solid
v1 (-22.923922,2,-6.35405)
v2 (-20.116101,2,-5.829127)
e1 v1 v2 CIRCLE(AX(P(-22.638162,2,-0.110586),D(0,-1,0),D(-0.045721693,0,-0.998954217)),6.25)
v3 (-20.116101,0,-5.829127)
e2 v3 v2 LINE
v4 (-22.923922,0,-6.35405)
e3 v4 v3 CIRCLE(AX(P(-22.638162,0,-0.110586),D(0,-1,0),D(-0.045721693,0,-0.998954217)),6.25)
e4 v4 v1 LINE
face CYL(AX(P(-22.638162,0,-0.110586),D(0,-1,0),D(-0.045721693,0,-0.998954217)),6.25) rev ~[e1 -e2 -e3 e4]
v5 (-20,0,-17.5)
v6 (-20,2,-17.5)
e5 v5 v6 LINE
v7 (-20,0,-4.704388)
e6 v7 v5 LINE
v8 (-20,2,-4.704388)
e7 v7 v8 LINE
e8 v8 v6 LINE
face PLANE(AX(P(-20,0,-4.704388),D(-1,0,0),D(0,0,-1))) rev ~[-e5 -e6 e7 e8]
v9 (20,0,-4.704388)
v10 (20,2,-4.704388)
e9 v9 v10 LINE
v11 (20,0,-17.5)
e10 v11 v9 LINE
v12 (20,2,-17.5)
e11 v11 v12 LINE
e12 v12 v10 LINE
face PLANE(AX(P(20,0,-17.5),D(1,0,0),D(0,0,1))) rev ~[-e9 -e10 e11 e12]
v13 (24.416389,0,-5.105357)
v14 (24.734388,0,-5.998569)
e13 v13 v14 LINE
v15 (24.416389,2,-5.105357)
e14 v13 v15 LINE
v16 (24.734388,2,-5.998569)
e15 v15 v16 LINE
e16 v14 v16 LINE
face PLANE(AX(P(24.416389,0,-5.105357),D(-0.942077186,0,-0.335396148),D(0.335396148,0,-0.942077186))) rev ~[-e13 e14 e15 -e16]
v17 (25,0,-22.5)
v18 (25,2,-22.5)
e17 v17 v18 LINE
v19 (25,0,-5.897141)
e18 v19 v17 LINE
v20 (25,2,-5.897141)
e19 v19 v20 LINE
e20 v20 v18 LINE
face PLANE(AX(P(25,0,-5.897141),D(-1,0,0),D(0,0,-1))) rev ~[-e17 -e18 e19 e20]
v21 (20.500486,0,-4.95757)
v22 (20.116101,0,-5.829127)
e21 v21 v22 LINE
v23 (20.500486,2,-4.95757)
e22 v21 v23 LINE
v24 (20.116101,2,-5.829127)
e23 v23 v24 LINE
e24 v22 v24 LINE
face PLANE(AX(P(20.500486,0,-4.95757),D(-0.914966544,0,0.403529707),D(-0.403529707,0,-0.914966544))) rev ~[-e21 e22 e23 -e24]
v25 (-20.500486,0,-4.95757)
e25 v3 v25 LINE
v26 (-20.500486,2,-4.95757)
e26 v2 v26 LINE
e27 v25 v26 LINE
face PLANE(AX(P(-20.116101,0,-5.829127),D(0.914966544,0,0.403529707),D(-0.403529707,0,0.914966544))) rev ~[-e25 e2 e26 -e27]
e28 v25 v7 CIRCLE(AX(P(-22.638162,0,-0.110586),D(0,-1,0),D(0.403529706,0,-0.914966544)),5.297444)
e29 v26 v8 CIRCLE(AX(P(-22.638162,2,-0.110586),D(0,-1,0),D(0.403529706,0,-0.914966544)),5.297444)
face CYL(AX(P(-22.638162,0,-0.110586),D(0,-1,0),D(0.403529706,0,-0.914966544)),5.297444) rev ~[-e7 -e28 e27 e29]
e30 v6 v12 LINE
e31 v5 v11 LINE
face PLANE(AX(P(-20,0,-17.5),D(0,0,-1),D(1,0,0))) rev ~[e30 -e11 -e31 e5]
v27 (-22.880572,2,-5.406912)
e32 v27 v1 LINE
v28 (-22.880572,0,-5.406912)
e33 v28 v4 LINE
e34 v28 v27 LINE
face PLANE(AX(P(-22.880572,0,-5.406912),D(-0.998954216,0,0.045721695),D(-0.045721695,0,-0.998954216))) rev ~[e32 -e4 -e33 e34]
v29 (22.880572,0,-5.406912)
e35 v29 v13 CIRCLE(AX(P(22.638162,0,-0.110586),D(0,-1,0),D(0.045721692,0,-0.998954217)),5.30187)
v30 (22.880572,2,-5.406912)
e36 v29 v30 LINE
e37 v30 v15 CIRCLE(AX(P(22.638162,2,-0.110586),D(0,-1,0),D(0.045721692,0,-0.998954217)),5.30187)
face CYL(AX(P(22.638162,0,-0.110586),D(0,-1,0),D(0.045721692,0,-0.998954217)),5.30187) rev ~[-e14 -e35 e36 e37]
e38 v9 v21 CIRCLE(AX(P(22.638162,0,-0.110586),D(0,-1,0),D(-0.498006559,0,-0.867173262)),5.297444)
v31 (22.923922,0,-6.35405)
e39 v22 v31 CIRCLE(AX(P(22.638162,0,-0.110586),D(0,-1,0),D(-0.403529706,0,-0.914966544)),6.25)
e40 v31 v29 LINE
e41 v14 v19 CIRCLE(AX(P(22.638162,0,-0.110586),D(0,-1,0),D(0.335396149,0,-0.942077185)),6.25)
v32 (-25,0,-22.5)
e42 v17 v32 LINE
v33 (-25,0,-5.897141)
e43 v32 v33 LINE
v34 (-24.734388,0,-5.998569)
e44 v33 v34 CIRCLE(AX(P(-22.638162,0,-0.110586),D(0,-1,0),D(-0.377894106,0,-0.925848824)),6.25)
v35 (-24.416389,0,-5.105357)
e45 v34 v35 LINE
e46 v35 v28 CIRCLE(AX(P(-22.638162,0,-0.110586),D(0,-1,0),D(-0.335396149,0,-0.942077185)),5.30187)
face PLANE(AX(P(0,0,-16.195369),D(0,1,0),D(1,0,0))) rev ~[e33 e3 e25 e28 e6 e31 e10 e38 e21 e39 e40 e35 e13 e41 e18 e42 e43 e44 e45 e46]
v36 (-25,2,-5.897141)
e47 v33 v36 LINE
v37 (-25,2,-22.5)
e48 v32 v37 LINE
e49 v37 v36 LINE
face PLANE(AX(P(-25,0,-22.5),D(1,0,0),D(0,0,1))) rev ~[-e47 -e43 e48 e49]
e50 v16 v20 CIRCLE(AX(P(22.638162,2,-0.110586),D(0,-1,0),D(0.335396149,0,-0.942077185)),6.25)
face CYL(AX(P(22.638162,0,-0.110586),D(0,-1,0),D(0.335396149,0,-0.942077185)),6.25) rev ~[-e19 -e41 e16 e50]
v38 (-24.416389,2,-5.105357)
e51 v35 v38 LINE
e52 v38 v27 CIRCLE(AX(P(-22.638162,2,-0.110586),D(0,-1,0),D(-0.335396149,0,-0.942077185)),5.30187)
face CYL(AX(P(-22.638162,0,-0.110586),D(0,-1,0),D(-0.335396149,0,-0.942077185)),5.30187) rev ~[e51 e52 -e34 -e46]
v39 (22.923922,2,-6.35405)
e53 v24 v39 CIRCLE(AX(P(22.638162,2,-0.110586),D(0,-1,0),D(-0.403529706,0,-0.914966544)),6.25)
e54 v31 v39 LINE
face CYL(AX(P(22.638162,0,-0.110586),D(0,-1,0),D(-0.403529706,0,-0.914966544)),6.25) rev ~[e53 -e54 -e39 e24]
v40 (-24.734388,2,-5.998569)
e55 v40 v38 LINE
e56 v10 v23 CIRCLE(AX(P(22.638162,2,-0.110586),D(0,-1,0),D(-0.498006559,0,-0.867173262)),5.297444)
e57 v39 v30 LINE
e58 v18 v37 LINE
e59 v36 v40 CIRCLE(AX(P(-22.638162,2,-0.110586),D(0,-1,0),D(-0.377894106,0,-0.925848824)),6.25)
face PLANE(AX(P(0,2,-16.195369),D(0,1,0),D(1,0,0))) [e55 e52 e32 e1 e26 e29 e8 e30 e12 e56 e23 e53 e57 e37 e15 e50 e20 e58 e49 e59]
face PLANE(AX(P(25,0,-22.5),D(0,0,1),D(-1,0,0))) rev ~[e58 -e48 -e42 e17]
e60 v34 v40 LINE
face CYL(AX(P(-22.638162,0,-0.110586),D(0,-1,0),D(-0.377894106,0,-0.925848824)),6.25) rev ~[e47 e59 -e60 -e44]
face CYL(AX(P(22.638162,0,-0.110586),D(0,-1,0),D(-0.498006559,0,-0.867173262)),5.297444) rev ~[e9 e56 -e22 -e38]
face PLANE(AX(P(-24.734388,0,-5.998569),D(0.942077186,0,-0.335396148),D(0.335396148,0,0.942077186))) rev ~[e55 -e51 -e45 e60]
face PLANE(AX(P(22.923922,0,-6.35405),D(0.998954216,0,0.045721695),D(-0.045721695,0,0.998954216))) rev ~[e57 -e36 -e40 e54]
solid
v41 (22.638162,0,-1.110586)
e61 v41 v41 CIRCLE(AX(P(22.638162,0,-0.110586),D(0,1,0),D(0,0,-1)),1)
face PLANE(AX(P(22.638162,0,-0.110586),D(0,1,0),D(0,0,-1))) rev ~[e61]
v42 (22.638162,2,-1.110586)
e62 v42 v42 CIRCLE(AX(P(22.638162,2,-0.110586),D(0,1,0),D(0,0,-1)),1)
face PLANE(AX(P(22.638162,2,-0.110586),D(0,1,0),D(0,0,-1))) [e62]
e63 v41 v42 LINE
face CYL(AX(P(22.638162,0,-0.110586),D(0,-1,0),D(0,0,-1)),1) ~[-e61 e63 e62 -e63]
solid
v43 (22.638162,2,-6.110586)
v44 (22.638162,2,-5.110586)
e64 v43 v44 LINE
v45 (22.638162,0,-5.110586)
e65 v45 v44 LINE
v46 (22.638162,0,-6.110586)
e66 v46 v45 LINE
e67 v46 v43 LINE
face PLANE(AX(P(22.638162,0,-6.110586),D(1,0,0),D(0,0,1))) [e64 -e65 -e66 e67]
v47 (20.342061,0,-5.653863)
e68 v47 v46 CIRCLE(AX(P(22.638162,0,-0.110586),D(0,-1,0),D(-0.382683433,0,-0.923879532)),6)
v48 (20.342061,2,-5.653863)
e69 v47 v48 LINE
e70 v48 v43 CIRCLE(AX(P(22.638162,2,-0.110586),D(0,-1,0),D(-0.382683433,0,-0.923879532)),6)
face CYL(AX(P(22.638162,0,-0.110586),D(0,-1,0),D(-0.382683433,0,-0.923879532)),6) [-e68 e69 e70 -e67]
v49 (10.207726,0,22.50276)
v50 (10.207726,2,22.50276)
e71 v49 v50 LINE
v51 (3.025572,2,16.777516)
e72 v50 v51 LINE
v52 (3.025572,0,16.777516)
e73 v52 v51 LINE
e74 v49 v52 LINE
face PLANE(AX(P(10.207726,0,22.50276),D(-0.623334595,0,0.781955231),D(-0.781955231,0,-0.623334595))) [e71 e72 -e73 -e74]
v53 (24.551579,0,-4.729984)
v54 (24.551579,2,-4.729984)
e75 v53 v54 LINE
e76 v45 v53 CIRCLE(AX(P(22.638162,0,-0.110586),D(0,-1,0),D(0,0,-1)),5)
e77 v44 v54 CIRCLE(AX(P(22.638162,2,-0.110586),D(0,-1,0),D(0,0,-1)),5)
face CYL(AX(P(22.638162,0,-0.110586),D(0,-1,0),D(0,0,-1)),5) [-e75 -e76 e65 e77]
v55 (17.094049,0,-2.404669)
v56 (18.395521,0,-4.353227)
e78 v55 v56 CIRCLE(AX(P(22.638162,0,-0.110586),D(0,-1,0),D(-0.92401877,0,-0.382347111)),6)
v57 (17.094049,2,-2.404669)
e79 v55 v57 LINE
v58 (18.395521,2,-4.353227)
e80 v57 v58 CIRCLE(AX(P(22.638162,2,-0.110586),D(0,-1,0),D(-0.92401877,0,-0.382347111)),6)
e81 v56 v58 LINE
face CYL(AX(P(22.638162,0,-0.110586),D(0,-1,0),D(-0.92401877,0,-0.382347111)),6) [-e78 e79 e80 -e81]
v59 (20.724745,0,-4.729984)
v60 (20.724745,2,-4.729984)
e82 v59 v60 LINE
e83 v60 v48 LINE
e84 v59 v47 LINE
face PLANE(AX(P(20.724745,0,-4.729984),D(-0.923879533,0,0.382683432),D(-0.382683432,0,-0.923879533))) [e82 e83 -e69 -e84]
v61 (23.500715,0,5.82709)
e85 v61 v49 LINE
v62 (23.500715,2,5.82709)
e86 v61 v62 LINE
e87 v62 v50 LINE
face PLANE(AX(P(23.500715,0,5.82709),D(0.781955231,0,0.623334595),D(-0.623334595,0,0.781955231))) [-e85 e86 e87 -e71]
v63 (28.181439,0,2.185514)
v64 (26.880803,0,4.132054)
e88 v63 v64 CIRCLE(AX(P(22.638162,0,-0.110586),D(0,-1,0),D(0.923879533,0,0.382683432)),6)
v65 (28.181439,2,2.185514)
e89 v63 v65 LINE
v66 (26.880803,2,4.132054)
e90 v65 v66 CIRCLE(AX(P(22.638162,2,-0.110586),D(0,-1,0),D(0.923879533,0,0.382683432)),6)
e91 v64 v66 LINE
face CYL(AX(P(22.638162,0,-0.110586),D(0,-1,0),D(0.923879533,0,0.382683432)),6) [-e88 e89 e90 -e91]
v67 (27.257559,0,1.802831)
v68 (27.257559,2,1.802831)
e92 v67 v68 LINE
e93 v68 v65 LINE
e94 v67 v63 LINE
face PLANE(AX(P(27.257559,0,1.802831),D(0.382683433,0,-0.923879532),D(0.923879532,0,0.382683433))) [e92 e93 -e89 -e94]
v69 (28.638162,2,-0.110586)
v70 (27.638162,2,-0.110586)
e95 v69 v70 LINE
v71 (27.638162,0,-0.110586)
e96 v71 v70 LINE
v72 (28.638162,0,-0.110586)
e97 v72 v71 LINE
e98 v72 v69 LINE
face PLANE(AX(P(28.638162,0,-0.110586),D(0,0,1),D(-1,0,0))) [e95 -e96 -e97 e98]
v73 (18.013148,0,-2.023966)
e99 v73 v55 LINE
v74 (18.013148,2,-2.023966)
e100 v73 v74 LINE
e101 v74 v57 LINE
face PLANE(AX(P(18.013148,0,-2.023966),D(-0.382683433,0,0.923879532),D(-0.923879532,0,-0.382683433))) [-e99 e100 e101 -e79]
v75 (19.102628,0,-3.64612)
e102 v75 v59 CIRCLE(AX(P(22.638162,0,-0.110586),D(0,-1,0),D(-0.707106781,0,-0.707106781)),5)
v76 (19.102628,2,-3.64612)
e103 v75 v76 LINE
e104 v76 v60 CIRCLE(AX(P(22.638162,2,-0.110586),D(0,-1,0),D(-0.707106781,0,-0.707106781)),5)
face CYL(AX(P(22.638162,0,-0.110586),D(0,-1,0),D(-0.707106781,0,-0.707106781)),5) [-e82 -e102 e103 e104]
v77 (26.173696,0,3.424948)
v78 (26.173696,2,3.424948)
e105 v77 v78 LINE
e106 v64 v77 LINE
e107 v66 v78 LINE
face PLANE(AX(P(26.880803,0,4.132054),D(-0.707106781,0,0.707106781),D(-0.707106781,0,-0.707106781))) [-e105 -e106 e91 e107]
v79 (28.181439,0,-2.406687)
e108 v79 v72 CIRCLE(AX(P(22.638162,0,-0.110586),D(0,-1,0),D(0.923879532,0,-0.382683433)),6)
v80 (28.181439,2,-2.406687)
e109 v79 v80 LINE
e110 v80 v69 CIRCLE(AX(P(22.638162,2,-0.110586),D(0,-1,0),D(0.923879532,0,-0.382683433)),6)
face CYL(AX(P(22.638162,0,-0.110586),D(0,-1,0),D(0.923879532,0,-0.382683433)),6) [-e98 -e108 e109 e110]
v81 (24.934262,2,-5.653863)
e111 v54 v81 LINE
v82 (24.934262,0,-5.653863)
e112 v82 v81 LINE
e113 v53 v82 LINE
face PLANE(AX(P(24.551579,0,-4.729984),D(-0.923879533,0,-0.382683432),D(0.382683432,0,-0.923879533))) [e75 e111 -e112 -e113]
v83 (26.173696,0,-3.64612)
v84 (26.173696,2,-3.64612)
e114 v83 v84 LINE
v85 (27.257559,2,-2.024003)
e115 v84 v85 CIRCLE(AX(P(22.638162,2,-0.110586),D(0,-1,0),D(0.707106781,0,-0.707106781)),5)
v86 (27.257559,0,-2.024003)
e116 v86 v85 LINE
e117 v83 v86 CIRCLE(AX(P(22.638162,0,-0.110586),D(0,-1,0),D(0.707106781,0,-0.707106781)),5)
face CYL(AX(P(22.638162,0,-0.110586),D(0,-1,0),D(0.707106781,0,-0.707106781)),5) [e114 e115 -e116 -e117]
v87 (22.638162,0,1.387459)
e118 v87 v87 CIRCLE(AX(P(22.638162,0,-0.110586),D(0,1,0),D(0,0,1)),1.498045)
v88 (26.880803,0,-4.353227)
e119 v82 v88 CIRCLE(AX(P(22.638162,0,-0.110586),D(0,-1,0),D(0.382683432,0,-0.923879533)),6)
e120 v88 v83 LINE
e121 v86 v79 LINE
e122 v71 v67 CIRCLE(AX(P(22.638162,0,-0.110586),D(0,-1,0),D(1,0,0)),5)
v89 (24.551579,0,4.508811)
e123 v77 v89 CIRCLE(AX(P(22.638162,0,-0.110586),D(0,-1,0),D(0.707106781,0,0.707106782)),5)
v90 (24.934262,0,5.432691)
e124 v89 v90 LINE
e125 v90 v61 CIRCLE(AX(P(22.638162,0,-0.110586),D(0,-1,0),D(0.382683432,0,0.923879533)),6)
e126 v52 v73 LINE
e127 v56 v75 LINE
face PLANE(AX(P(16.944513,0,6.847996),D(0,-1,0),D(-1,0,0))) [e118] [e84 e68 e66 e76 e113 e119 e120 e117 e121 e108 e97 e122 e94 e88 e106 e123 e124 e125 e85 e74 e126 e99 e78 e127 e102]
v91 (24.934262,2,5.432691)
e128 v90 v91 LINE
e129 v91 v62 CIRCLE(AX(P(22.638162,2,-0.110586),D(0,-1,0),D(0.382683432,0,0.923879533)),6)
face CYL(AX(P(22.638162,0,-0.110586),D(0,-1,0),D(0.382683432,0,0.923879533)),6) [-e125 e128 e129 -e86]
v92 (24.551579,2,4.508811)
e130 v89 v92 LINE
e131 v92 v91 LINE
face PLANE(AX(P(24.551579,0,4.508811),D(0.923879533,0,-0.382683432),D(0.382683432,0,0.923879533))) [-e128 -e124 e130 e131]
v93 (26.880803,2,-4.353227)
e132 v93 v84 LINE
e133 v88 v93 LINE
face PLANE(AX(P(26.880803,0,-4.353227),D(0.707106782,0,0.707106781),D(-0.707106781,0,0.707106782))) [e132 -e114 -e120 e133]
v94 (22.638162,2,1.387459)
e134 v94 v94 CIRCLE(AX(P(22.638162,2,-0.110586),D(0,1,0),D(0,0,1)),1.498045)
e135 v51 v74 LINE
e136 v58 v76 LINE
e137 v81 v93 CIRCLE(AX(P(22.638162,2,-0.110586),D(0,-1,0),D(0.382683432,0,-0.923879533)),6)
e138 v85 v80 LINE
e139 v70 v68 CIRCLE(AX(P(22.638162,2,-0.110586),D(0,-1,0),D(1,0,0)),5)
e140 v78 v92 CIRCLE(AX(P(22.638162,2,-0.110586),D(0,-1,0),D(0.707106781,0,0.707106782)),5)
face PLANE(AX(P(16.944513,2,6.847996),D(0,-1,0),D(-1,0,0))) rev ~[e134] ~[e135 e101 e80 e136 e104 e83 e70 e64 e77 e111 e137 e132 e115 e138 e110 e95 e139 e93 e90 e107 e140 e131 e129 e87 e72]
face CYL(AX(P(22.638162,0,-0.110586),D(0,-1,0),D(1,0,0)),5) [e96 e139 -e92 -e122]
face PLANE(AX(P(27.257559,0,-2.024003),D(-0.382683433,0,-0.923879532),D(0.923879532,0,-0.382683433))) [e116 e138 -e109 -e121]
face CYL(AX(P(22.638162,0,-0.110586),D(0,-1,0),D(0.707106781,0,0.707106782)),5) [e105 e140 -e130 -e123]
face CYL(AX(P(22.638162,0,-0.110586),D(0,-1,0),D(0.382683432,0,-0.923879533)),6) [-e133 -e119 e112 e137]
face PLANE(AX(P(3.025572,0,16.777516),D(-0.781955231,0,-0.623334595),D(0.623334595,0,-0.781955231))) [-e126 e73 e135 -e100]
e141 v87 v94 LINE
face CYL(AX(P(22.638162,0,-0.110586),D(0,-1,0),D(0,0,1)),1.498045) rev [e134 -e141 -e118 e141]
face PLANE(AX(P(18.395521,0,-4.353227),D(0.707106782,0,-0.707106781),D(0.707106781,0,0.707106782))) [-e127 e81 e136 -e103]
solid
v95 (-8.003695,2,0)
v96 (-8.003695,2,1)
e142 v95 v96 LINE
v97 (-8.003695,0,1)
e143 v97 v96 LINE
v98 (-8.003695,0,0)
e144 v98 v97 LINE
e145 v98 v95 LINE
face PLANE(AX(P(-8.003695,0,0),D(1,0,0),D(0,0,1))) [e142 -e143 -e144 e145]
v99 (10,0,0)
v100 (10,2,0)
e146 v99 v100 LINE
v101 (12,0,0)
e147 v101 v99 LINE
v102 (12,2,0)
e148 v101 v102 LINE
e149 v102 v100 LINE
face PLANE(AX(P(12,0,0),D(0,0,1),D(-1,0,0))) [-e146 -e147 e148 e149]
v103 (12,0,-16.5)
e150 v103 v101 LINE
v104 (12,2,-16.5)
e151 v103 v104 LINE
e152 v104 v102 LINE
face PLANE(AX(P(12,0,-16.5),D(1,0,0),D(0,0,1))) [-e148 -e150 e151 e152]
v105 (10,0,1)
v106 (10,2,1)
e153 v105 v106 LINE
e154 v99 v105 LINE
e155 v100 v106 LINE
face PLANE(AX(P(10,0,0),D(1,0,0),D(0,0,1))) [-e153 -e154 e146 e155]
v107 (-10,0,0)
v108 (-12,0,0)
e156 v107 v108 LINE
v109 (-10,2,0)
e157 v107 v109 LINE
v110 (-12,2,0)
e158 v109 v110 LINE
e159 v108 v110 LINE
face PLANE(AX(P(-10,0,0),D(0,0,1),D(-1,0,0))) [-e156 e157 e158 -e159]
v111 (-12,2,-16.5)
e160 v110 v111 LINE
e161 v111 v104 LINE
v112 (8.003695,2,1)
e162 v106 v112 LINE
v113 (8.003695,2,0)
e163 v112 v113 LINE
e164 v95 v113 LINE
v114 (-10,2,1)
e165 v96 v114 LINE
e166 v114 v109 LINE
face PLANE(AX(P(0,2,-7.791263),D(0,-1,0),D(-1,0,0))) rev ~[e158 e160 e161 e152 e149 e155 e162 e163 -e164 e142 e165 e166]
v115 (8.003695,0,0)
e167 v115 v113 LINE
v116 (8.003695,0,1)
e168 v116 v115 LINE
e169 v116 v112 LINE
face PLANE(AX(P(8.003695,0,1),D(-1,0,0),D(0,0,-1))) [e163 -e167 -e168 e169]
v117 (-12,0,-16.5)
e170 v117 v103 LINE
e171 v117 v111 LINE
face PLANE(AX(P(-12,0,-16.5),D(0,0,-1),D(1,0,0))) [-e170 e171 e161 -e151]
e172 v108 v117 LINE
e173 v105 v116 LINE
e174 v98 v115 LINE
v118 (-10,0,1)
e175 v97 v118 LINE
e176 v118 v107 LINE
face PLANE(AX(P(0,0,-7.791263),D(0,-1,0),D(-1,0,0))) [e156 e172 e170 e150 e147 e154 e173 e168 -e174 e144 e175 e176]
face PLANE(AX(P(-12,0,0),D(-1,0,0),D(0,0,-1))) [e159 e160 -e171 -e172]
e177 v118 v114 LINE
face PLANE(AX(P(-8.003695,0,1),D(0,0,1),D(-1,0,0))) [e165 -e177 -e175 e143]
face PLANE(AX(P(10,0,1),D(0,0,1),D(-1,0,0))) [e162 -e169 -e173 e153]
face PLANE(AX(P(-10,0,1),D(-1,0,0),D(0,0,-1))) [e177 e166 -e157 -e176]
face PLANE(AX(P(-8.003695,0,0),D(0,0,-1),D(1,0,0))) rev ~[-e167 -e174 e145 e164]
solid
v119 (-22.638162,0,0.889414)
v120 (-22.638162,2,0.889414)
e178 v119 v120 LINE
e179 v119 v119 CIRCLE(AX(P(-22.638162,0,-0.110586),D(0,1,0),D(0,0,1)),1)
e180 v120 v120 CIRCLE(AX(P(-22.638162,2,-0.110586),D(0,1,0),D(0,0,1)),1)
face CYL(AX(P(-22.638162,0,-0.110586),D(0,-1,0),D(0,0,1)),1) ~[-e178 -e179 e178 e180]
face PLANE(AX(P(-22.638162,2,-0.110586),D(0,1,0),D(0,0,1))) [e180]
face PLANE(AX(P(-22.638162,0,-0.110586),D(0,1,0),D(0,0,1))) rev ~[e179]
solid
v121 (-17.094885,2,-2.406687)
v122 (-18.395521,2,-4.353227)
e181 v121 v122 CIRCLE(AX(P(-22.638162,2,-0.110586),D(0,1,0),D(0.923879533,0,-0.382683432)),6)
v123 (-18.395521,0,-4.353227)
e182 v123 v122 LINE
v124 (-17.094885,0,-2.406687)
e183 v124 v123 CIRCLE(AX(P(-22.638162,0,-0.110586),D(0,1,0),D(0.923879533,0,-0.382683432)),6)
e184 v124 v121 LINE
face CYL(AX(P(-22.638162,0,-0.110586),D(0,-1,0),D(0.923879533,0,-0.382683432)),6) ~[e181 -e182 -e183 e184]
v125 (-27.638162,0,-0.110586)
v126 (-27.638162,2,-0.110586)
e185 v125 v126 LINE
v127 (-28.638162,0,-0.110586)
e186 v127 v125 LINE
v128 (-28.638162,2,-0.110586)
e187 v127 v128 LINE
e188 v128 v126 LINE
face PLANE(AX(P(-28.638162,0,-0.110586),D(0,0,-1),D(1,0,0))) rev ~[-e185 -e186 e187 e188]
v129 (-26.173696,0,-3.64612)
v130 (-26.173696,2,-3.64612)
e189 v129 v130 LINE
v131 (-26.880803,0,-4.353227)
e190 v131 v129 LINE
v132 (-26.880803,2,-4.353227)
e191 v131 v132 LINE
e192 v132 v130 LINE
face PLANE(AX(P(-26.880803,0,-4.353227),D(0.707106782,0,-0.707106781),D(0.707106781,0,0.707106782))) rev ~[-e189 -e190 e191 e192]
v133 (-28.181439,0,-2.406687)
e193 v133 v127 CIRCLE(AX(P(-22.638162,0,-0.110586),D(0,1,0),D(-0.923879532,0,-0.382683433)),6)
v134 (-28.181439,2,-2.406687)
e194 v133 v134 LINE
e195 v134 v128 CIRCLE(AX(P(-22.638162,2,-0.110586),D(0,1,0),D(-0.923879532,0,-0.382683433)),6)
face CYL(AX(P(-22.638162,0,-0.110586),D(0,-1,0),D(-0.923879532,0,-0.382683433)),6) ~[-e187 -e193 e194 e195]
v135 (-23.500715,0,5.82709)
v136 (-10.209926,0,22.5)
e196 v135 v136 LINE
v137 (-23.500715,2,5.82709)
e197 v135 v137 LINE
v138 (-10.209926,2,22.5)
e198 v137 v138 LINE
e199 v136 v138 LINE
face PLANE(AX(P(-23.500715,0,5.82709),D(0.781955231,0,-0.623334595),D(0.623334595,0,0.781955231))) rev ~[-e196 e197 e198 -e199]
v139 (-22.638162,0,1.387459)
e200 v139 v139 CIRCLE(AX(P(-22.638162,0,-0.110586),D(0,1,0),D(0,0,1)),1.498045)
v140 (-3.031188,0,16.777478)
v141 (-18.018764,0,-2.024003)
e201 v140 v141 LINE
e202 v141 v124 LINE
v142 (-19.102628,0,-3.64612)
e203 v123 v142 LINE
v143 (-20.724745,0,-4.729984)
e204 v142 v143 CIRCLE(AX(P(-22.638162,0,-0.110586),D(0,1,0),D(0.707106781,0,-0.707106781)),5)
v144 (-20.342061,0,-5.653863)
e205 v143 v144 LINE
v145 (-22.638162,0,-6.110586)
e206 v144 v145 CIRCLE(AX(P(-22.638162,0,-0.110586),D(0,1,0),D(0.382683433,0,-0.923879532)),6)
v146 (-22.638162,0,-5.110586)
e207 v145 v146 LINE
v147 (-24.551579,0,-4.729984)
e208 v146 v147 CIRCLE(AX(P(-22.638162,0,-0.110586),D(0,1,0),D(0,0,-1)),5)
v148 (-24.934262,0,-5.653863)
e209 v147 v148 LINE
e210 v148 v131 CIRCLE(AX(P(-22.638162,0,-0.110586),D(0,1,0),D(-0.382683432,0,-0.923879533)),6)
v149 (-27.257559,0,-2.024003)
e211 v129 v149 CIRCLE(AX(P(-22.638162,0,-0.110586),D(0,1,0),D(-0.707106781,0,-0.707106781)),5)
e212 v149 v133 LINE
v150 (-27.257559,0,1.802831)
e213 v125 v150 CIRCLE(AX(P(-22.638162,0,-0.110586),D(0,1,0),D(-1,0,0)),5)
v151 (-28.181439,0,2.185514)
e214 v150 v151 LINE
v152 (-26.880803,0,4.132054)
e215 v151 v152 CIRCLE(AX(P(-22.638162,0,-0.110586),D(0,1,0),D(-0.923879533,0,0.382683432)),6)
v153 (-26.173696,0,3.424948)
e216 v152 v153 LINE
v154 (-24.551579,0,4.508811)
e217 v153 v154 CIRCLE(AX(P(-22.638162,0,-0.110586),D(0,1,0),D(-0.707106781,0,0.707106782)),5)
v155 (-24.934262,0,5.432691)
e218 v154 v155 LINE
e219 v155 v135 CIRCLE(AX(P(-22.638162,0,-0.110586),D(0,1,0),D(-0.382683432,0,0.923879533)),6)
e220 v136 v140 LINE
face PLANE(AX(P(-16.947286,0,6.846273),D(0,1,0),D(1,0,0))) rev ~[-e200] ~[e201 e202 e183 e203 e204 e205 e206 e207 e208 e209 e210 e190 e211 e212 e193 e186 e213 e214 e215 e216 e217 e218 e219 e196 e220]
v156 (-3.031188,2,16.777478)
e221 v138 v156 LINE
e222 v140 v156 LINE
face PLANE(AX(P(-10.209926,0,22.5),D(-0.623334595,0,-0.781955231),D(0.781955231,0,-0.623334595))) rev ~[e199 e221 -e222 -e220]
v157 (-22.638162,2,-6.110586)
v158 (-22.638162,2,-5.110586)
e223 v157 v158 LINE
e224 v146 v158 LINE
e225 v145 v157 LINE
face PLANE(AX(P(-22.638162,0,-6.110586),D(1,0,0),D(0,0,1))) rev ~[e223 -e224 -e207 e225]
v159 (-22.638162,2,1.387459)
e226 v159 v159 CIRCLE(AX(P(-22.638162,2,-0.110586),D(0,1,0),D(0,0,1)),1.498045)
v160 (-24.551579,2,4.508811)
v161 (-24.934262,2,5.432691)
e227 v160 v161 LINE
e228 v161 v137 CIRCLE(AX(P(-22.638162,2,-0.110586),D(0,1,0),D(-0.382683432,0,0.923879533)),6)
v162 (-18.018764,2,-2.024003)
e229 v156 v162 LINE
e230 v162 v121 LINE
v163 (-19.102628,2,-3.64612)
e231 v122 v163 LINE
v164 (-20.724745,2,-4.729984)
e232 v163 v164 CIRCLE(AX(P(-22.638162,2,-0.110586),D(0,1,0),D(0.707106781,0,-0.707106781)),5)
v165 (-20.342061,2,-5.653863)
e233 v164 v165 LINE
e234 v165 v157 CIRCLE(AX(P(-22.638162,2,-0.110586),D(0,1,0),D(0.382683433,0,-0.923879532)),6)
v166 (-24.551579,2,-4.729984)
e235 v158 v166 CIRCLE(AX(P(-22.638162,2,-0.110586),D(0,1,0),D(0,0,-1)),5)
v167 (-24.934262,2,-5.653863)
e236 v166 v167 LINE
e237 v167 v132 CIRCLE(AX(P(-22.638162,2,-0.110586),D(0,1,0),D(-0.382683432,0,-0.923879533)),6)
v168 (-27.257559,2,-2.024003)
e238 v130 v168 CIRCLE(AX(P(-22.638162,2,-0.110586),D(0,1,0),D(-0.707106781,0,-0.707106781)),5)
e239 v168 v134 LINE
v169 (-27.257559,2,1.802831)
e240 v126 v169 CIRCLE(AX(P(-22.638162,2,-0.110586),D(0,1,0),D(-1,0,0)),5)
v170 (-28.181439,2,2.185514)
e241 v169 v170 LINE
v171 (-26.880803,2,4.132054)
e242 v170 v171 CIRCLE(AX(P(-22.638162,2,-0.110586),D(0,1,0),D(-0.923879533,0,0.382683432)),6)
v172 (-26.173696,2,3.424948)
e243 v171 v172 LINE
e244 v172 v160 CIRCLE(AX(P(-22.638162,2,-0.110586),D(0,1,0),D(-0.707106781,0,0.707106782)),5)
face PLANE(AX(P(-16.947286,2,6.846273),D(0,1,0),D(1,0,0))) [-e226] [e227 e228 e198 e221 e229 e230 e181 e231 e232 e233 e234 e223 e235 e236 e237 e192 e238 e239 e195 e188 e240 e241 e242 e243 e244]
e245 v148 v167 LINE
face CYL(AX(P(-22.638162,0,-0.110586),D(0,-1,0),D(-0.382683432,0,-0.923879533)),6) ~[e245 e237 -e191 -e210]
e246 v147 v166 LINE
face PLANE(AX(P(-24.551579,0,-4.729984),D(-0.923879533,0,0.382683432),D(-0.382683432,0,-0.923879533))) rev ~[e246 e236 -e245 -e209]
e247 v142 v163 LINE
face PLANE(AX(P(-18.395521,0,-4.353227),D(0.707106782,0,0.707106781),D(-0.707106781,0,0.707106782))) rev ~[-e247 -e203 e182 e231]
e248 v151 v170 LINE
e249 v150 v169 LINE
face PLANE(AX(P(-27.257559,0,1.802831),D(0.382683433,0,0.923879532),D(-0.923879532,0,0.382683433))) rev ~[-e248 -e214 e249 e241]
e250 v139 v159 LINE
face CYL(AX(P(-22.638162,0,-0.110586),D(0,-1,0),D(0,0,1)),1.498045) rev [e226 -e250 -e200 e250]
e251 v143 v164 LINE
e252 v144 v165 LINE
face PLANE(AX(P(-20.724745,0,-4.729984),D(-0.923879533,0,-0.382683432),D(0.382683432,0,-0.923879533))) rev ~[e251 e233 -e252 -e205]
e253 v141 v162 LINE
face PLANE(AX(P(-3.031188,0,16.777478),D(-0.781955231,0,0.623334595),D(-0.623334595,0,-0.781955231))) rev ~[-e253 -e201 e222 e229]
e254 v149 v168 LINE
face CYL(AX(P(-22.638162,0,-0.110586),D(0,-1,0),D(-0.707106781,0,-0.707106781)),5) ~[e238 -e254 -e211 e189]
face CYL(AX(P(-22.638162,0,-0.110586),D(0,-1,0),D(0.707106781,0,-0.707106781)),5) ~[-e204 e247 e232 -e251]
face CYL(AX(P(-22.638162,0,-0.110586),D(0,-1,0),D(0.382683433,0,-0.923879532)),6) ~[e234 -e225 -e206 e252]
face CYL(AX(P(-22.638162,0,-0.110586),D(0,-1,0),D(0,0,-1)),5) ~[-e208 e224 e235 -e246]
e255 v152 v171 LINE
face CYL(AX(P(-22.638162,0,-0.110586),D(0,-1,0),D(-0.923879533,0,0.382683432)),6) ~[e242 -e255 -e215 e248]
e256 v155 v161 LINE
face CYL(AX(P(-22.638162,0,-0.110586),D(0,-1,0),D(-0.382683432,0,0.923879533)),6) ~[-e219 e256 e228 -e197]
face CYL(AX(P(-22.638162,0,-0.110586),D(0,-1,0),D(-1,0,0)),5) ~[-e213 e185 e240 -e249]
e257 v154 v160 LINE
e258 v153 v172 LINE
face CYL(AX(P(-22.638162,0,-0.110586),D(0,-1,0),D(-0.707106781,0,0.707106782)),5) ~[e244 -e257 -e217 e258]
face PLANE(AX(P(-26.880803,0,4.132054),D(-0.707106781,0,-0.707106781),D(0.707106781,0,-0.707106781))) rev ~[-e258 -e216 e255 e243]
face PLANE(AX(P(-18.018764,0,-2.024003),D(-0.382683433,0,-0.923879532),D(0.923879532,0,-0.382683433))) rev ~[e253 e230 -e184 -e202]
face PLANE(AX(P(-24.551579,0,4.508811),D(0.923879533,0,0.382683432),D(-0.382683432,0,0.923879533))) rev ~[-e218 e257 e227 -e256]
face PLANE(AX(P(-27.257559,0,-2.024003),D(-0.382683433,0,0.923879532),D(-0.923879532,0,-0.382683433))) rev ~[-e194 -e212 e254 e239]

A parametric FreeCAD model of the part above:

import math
import FreeCAD as App
import Part
import Sketcher
from FreeCAD import Vector
Q = App.Units.Quantity


def add_polygon(sketch, points):
    """Adds a closed chain of lines whose ends are joined by coincident constraints."""
    first, n = sketch.GeometryCount, len(points)
    for a, b in zip(points, points[1:] + points[:1]):
        sketch.addGeometry(Part.LineSegment(App.Vector(*a, 0), App.Vector(*b, 0)), False)
    for i in range(n):
        sketch.addConstraint(Sketcher.Constraint("Coincident", first + i, 2, first + (i + 1) % n, 1))

doc = App.newDocument("Part")
params = doc.addObject("Spreadsheet::Sheet", "Params")
for row, (alias, value) in enumerate([
    ("sketch1_radius", "6 mm"),
    ("sketch1_radius2", "5 mm"),
    ("pad1_length", "2 mm"),
    ("sketch2_radius", "5 mm"),
    ("sketch2_radius2", "6 mm"),
    ("sketch2_radius3", "5 mm"),
    ("sketch2_radius4", "6 mm"),
    ("sketch2_radius5", "6 mm"),
    ("pad2_length", "2 mm"),
    ("sketch3_width", "2 mm"),
    ("sketch3_width2", "24 mm"),
    ("sketch3_height", "1 mm"),
    ("sketch3_height2", "16.5 mm"),
    ("pad3_length", "2 mm"),
    ("sketch4_width", "50 mm"),
    ("sketch4_width2", "40 mm"),
    ("sketch4_radius", "6.25 mm"),
    ("pad4_length", "2 mm"),
    ("sketch5_diameter", "2 mm"),
    ("pad5_length", "2 mm"),
    ("sketch6_diameter", "2 mm"),
    ("pad6_length", "2 mm"),
], start=1):
    params.set(f"A{row}", alias)
    params.set(f"B{row}", "=" + value)
    params.setAlias(f"B{row}", alias)

body = doc.addObject("PartDesign::Body", "Body")

sketch1 = body.newObject("Sketcher::SketchObject", "Sketch")
sketch1.AttachmentSupport = (doc.getObject("XZ_Plane"), [""])
sketch1.MapMode = "FlatFace"
sketch1.addGeometry([
    Part.ArcOfCircle(Part.Circle(Vector(22.6, -0.1, 0), Vector(0, 0, 1), 6), math.radians(67.5), math.radians(81.73)),
    Part.LineSegment(Vector(24.9, 5.4, 0), Vector(24.6, 4.5, 0)),
    Part.ArcOfCircle(Part.Circle(Vector(22.6, -0.1, 0), Vector(0, 0, 1), 5), math.radians(45), math.radians(67)),
    Part.LineSegment(Vector(26.2, 3.4, 0), Vector(26.9, 4.1, 0)),
    Part.ArcOfCircle(Part.Circle(Vector(22.6, -0.1, 0), Vector(0, 0, 1), 6), math.radians(22), math.radians(45)),
    Part.LineSegment(Vector(28.2, 2.2, 0), Vector(27.3, 1.8, 0)),
    Part.ArcOfCircle(Part.Circle(Vector(22.6, -0.1, 0), Vector(0, 0, 1), 5), math.radians(0), math.radians(22)),
    Part.LineSegment(Vector(27.6, -0.1, 0), Vector(28.6, -0.1, 0)),
    Part.ArcOfCircle(Part.Circle(Vector(22.6, -0.1, 0), Vector(0, 0, 1), 6), math.radians(-23), math.radians(0)),
    Part.LineSegment(Vector(28.2, -2.4, 0), Vector(27.3, -2, 0)),
    Part.ArcOfCircle(Part.Circle(Vector(22.6, -0.1, 0), Vector(0, 0, 1), 5), math.radians(-45), math.radians(-23)),
    Part.LineSegment(Vector(26.2, -3.6, 0), Vector(26.9, -4.4, 0)),
    Part.ArcOfCircle(Part.Circle(Vector(22.6, -0.1, 0), Vector(0, 0, 1), 6), math.radians(-68), math.radians(-45)),
    Part.LineSegment(Vector(24.9, -5.7, 0), Vector(24.6, -4.7, 0)),
    Part.ArcOfCircle(Part.Circle(Vector(22.6, -0.1, 0), Vector(0, 0, 1), 5), math.radians(-90), math.radians(-68)),
    Part.LineSegment(Vector(22.6, -5.1, 0), Vector(22.6, -6.1, 0)),
    Part.ArcOfCircle(Part.Circle(Vector(22.6, -0.1, 0), Vector(0, 0, 1), 6), math.radians(-113), math.radians(-90)),
    Part.LineSegment(Vector(20.3, -5.7, 0), Vector(20.7, -4.7, 0)),
    Part.ArcOfCircle(Part.Circle(Vector(22.6, -0.1, 0), Vector(0, 0, 1), 5), math.radians(-135), math.radians(-113)),
    Part.LineSegment(Vector(19.1, -3.6, 0), Vector(18.4, -4.4, 0)),
    Part.ArcOfCircle(Part.Circle(Vector(22.6, -0.1, 0), Vector(0, 0, 1), 6), math.radians(-158), math.radians(-135)),
    Part.LineSegment(Vector(17.1, -2.4, 0), Vector(18, -2, 0)),
    Part.LineSegment(Vector(18, -2, 0), Vector(3, 16.8, 0)),
    Part.LineSegment(Vector(3, 16.8, 0), Vector(10.2, 22.5, 0)),
    Part.LineSegment(Vector(10.2, 22.5, 0), Vector(23.5, 5.8, 0)),
    Part.Circle(Vector(22.6, -0.1, 0), Vector(0, 0, 1), 1.5),
], False)
sketch1.addConstraint([
    Sketcher.Constraint("Coincident", 0, 1, 1, 1),
    Sketcher.Constraint("Coincident", 1, 2, 2, 2),
    Sketcher.Constraint("Coincident", 2, 1, 3, 1),
    Sketcher.Constraint("Coincident", 3, 2, 4, 2),
    Sketcher.Constraint("Coincident", 4, 1, 5, 1),
    Sketcher.Constraint("Coincident", 5, 2, 6, 2),
    Sketcher.Constraint("Coincident", 6, 1, 7, 1),
    Sketcher.Constraint("Coincident", 7, 2, 8, 2),
    Sketcher.Constraint("Coincident", 8, 1, 9, 1),
    Sketcher.Constraint("Coincident", 9, 2, 10, 2),
    Sketcher.Constraint("Coincident", 10, 1, 11, 1),
    Sketcher.Constraint("Coincident", 11, 2, 12, 2),
    Sketcher.Constraint("Coincident", 12, 1, 13, 1),
    Sketcher.Constraint("Coincident", 13, 2, 14, 2),
    Sketcher.Constraint("Coincident", 14, 1, 15, 1),
    Sketcher.Constraint("Coincident", 15, 2, 16, 2),
    Sketcher.Constraint("Coincident", 16, 1, 17, 1),
    Sketcher.Constraint("Coincident", 17, 2, 18, 2),
    Sketcher.Constraint("Coincident", 18, 1, 19, 1),
    Sketcher.Constraint("Coincident", 19, 2, 20, 2),
    Sketcher.Constraint("Coincident", 20, 1, 21, 1),
    Sketcher.Constraint("Coincident", 21, 2, 22, 1),
    Sketcher.Constraint("Coincident", 22, 2, 23, 1),
    Sketcher.Constraint("Coincident", 23, 2, 24, 1),
    Sketcher.Constraint("Coincident", 24, 2, 0, 2),
    Sketcher.Constraint("Horizontal", 7),
    Sketcher.Constraint("Vertical", 15),
    Sketcher.Constraint("Coincident", 2, 3, 0, 3),
    Sketcher.Constraint("Coincident", 4, 3, 0, 3),
    Sketcher.Constraint("Coincident", 6, 3, 0, 3),
    Sketcher.Constraint("Coincident", 8, 3, 0, 3),
    Sketcher.Constraint("Coincident", 10, 3, 0, 3),
    Sketcher.Constraint("Coincident", 12, 3, 0, 3),
    Sketcher.Constraint("Coincident", 14, 3, 0, 3),
    Sketcher.Constraint("Coincident", 16, 3, 0, 3),
    Sketcher.Constraint("Coincident", 18, 3, 0, 3),
    Sketcher.Constraint("Coincident", 20, 3, 0, 3),
    Sketcher.Constraint("Coincident", 25, 3, 0, 3),
    Sketcher.Constraint("Equal", 0, 4),
    Sketcher.Constraint("Equal", 2, 6),
    Sketcher.Constraint("Equal", 4, 8),
    Sketcher.Constraint("Equal", 6, 10),
    Sketcher.Constraint("Equal", 8, 12),
    Sketcher.Constraint("Equal", 10, 14),
    Sketcher.Constraint("Equal", 12, 16),
    Sketcher.Constraint("Equal", 14, 18),
    Sketcher.Constraint("Equal", 16, 20),
    Sketcher.Constraint("Perpendicular", 1, 9),
    Sketcher.Constraint("Perpendicular", 3, 11),
    Sketcher.Constraint("Perpendicular", 5, 13),
    Sketcher.Constraint("Perpendicular", 9, 17),
    Sketcher.Constraint("Perpendicular", 11, 19),
    Sketcher.Constraint("Perpendicular", 13, 21),
    Sketcher.Constraint("Perpendicular", 22, 23),
    Sketcher.Constraint("Perpendicular", 23, 24),
    Sketcher.Constraint("Horizontal", 25, 3, 6, 1),
    Sketcher.Constraint("Horizontal", 12, 1, 16, 1),
    Sketcher.Constraint("Horizontal", 13, 2, 17, 2),
    Sketcher.Constraint("Horizontal", 10, 1, 18, 1),
    Sketcher.Constraint("Horizontal", 11, 2, 19, 2),
    Sketcher.Constraint("Vertical", 4, 1, 8, 1),
    Sketcher.Constraint("Vertical", 2, 1, 10, 1),
    Sketcher.Constraint("Vertical", 0, 1, 12, 1),
    Sketcher.Constraint("Vertical", 25, 3, 14, 1),
    Sketcher.Constraint("Radius", 0, 6.0),
    Sketcher.Constraint("Radius", 2, 5.0),
    Sketcher.Constraint("Angle", 1, Q("-112.5 deg")),
    Sketcher.Constraint("Diameter", 25, 2.996091),
    Sketcher.Constraint("DistanceX", 14, 3, 0, 1, 2.296101),
    Sketcher.Constraint("DistanceY", 8, 3, 4, 1, 2.296101),
    Sketcher.Constraint("DistanceX", 20, 1, 21, 2, 0.919099),
    Sketcher.Constraint("DistanceY", 14, 3, 22, 2, 16.888102),
    Sketcher.Constraint("DistanceY", 0, 1, 24, 2, 0.394399),
    Sketcher.Constraint("Distance", 22, 24.044191),
    Sketcher.Constraint("DistanceX", -1, 1, 0, 3, 22.638162),
    Sketcher.Constraint("DistanceY", -1, 1, 0, 1, 5.432691),
    Sketcher.Constraint("DistanceY", 10, 1, -1, 1, 3.64612),
    Sketcher.Constraint("DistanceX", -1, 1, 20, 1, 17.094049),
])
sketch1.setExpression("Constraints[64]", "Params.sketch1_radius")
sketch1.setExpression("Constraints[65]", "Params.sketch1_radius2")
pad1 = body.newObject("PartDesign::Pad", "Pad")
pad1.Profile = sketch1
pad1.setExpression("Length", "Params.pad1_length")
pad1.Reversed = True
body2 = doc.addObject("PartDesign::Body", "Body001")

sketch2 = body2.newObject("Sketcher::SketchObject", "Sketch001")
sketch2.AttachmentSupport = (doc.getObject("XZ_Plane001"), [""])
sketch2.MapMode = "FlatFace"
sketch2.addGeometry([
    Part.LineSegment(Vector(-28.638162, -0.110586, 0), Vector(-27.638162, -0.110586, 0)),
    Part.ArcOfCircle(Part.Circle(Vector(-22.638162, -0.110586, 0), Vector(0, 0, 1), 5), math.radians(157.5), math.radians(180)),
    Part.LineSegment(Vector(-27.257559, 1.802831, 0), Vector(-28.181439, 2.185514, 0)),
    Part.ArcOfCircle(Part.Circle(Vector(-22.638162, -0.110586, 0), Vector(0, 0, 1), 6), math.radians(135), math.radians(157.5)),
    Part.LineSegment(Vector(-26.880803, 4.132054, 0), Vector(-26.173696, 3.424948, 0)),
    Part.ArcOfCircle(Part.Circle(Vector(-22.638162, -0.110586, 0), Vector(0, 0, 1), 5), math.radians(112.5), math.radians(135)),
    Part.LineSegment(Vector(-24.551579, 4.508811, 0), Vector(-24.934262, 5.432691, 0)),
    Part.ArcOfCircle(Part.Circle(Vector(-22.638162, -0.110586, 0), Vector(0, 0, 1), 6), math.radians(98.265411), math.radians(112.5)),
    Part.LineSegment(Vector(-23.500715, 5.82709, 0), Vector(-10.209926, 22.5, 0)),
    Part.LineSegment(Vector(-10.209926, 22.5, 0), Vector(-3.031188, 16.777478, 0)),
    Part.LineSegment(Vector(-3.031188, 16.777478, 0), Vector(-18.018764, -2.024003, 0)),
    Part.LineSegment(Vector(-18.018764, -2.024003, 0), Vector(-17.094885, -2.406687, 0)),
    Part.ArcOfCircle(Part.Circle(Vector(-22.638162, -0.110586, 0), Vector(0, 0, 1), 6), math.radians(-45), math.radians(-22.5)),
    Part.LineSegment(Vector(-18.395521, -4.353227, 0), Vector(-19.102628, -3.64612, 0)),
    Part.ArcOfCircle(Part.Circle(Vector(-22.638162, -0.110586, 0), Vector(0, 0, 1), 5), math.radians(-67.5), math.radians(-45)),
    Part.LineSegment(Vector(-20.724745, -4.729984, 0), Vector(-20.342061, -5.653863, 0)),
    Part.ArcOfCircle(Part.Circle(Vector(-22.638162, -0.110586, 0), Vector(0, 0, 1), 6), math.radians(-90), math.radians(-67.5)),
    Part.LineSegment(Vector(-22.638162, -6.110586, 0), Vector(-22.638162, -5.110586, 0)),
    Part.ArcOfCircle(Part.Circle(Vector(-22.638162, -0.110586, 0), Vector(0, 0, 1), 5), math.radians(-112.5), math.radians(-90)),
    Part.LineSegment(Vector(-24.551579, -4.729984, 0), Vector(-24.934262, -5.653863, 0)),
    Part.ArcOfCircle(Part.Circle(Vector(-22.638162, -0.110586, 0), Vector(0, 0, 1), 6), math.radians(-135), math.radians(-112.5)),
    Part.LineSegment(Vector(-26.880803, -4.353227, 0), Vector(-26.173696, -3.64612, 0)),
    Part.ArcOfCircle(Part.Circle(Vector(-22.638162, -0.110586, 0), Vector(0, 0, 1), 5), math.radians(-157.5), math.radians(-135)),
    Part.LineSegment(Vector(-27.257559, -2.024003, 0), Vector(-28.181439, -2.406687, 0)),
    Part.ArcOfCircle(Part.Circle(Vector(-22.638162, -0.110586, 0), Vector(0, 0, 1), 6), math.radians(180), math.radians(202.5)),
    Part.Circle(Vector(-22.638162, -0.110586, 0), Vector(0, 0, 1), 1.498045),
], False)
sketch2.addConstraint([
    Sketcher.Constraint("Coincident", 0, 2, 1, 2),
    Sketcher.Constraint("Coincident", 1, 1, 2, 1),
    Sketcher.Constraint("Coincident", 2, 2, 3, 2),
    Sketcher.Constraint("Coincident", 3, 1, 4, 1),
    Sketcher.Constraint("Coincident", 4, 2, 5, 2),
    Sketcher.Constraint("Coincident", 5, 1, 6, 1),
    Sketcher.Constraint("Coincident", 6, 2, 7, 2),
    Sketcher.Constraint("Coincident", 7, 1, 8, 1),
    Sketcher.Constraint("Coincident", 8, 2, 9, 1),
    Sketcher.Constraint("Coincident", 9, 2, 10, 1),
    Sketcher.Constraint("Coincident", 10, 2, 11, 1),
    Sketcher.Constraint("Coincident", 11, 2, 12, 2),
    Sketcher.Constraint("Coincident", 12, 1, 13, 1),
    Sketcher.Constraint("Coincident", 13, 2, 14, 2),
    Sketcher.Constraint("Coincident", 14, 1, 15, 1),
    Sketcher.Constraint("Coincident", 15, 2, 16, 2),
    Sketcher.Constraint("Coincident", 16, 1, 17, 1),
    Sketcher.Constraint("Coincident", 17, 2, 18, 2),
    Sketcher.Constraint("Coincident", 18, 1, 19, 1),
    Sketcher.Constraint("Coincident", 19, 2, 20, 2),
    Sketcher.Constraint("Coincident", 20, 1, 21, 1),
    Sketcher.Constraint("Coincident", 21, 2, 22, 2),
    Sketcher.Constraint("Coincident", 22, 1, 23, 1),
    Sketcher.Constraint("Coincident", 23, 2, 24, 2),
    Sketcher.Constraint("Coincident", 24, 1, 0, 1),
    Sketcher.Constraint("Horizontal", 0),
    Sketcher.Constraint("Vertical", 17),
    Sketcher.Constraint("Coincident", 3, 3, 1, 3),
    Sketcher.Constraint("Coincident", 5, 3, 1, 3),
    Sketcher.Constraint("Coincident", 7, 3, 1, 3),
    Sketcher.Constraint("Coincident", 12, 3, 1, 3),
    Sketcher.Constraint("Coincident", 14, 3, 1, 3),
    Sketcher.Constraint("Coincident", 16, 3, 1, 3),
    Sketcher.Constraint("Coincident", 18, 3, 1, 3),
    Sketcher.Constraint("Coincident", 20, 3, 1, 3),
    Sketcher.Constraint("Coincident", 22, 3, 1, 3),
    Sketcher.Constraint("Coincident", 24, 3, 1, 3),
    Sketcher.Constraint("Coincident", 25, 3, 1, 3),
    Sketcher.Constraint("Radius", 1, 5.0),
    Sketcher.Constraint("Radius", 3, 6.0),
    Sketcher.Constraint("Radius", 5, 5.0),
    Sketcher.Constraint("Radius", 7, 6.0),
    Sketcher.Constraint("Radius", 12, 6.0),
    Sketcher.Constraint("Radius", 14, 5.0),
    Sketcher.Constraint("Radius", 16, 6.0),
    Sketcher.Constraint("Radius", 18, 5.0),
    Sketcher.Constraint("Radius", 20, 6.0),
    Sketcher.Constraint("Radius", 22, 5.0),
    Sketcher.Constraint("Radius", 24, 6.0),
    Sketcher.Constraint("Distance", 11, 1.0),
    Sketcher.Constraint("DistanceY", -1, 1, 8, 2, 22.5),
    Sketcher.Constraint("Diameter", 25, 2.996091),
    Sketcher.Constraint("Distance", 9, 9.180498),
    Sketcher.Constraint("DistanceY", 0, 2, 2, 2, 2.296101),
    Sketcher.Constraint("DistanceY", 24, 3, 2, 2, 2.296101),
    Sketcher.Constraint("DistanceY", 6, 2, 7, 1, 0.394399),
    Sketcher.Constraint("DistanceY", 11, 2, 16, 3, 2.296101),
    Sketcher.Constraint("DistanceX", 16, 1, 15, 2, 2.296101),
    Sketcher.Constraint("DistanceX", 19, 2, 16, 1, 2.296101),
    Sketcher.Constraint("DistanceY", 23, 2, 0, 2, 2.296101),
    Sketcher.Constraint("Distance", 10, 24.044191),
    Sketcher.Constraint("DistanceX", 1, 3, -1, 1, 22.638162),
    Sketcher.Constraint("DistanceX", 1, 1, -1, 1, 27.257559),
    Sketcher.Constraint("DistanceY", -1, 1, 1, 1, 1.802831),
    Sketcher.Constraint("DistanceX", 5, 1, -1, 1, 24.551579),
    Sketcher.Constraint("DistanceY", -1, 1, 6, 2, 5.432691),
    Sketcher.Constraint("DistanceX", 12, 1, -1, 1, 18.395521),
    Sketcher.Constraint("DistanceY", 13, 2, -1, 1, 3.64612),
    Sketcher.Constraint("DistanceX", 15, 2, -1, 1, 20.342061),
    Sketcher.Constraint("DistanceX", 18, 1, -1, 1, 24.551579),
    Sketcher.Constraint("DistanceY", 21, 2, -1, 1, 3.64612),
    Sketcher.Constraint("DistanceX", 22, 1, -1, 1, 27.257559),
    Sketcher.Constraint("DistanceY", 2, 2, 3, 1, 1.94654),
    Sketcher.Constraint("DistanceX", 4, 2, 7, 1, 2.672981),
    Sketcher.Constraint("DistanceX", 7, 1, 8, 2, 13.290788),
    Sketcher.Constraint("DistanceX", 8, 2, 9, 2, 7.178739),
    Sketcher.Constraint("DistanceX", 14, 1, 10, 2, 2.705981),
    Sketcher.Constraint("DistanceX", 20, 1, 19, 2, 1.94654),
])
sketch2.setExpression("Constraints[38]", "Params.sketch2_radius")
sketch2.setExpression("Constraints[39]", "Params.sketch2_radius2")
sketch2.setExpression("Constraints[40]", "Params.sketch2_radius3")
sketch2.setExpression("Constraints[41]", "Params.sketch2_radius4")
sketch2.setExpression("Constraints[42]", "Params.sketch2_radius5")
pad2 = body2.newObject("PartDesign::Pad", "Pad001")
pad2.Profile = sketch2
pad2.setExpression("Length", "Params.pad2_length")
pad2.Reversed = True
body3 = doc.addObject("PartDesign::Body", "Body002")

sketch3 = body3.newObject("Sketcher::SketchObject", "Sketch002")
sketch3.AttachmentSupport = (doc.getObject("XZ_Plane002"), [""])
sketch3.MapMode = "FlatFace"
add_polygon(sketch3, [(10, 1), (10, 0), (12, 0), (12, -16.5), (-12, -16.5), (-12, 0), (-10, 0), (-10, 1), (-8, 1), (-8, 0), (8, 0), (8, 1)])
sketch3.addConstraint([
    Sketcher.Constraint("Vertical", 0),
    Sketcher.Constraint("Horizontal", 1),
    Sketcher.Constraint("Vertical", 2),
    Sketcher.Constraint("Horizontal", 3),
    Sketcher.Constraint("Vertical", 4),
    Sketcher.Constraint("Horizontal", 5),
    Sketcher.Constraint("Vertical", 6),
    Sketcher.Constraint("Horizontal", 7),
    Sketcher.Constraint("Vertical", 8),
    Sketcher.Constraint("Horizontal", 9),
    Sketcher.Constraint("Vertical", 10),
    Sketcher.Constraint("Horizontal", 11),
    Sketcher.Constraint("Symmetric", 1, 2, 4, 2, -1, 1),
    Sketcher.Constraint("Symmetric", 8, 2, 9, 2, -1, 1),
    Sketcher.Constraint("Symmetric", 0, 2, 5, 2, -2),
    Sketcher.Constraint("Horizontal", 7, 2, 10, 2),
    Sketcher.Constraint("DistanceX", 1, 1, 1, 2, 2.0),
    Sketcher.Constraint("DistanceX", 3, 2, 3, 1, 24.0),
    Sketcher.Constraint("DistanceY", 0, 2, 0, 1, 1.0),
    Sketcher.Constraint("DistanceY", 2, 2, 2, 1, 16.5),
    Sketcher.Constraint("DistanceX", 9, 1, 9, 2, 16.007389),
])
sketch3.setExpression("Constraints[28]", "Params.sketch3_width")
sketch3.setExpression("Constraints[29]", "Params.sketch3_width2")
sketch3.setExpression("Constraints[30]", "Params.sketch3_height")
sketch3.setExpression("Constraints[31]", "Params.sketch3_height2")
pad3 = body3.newObject("PartDesign::Pad", "Pad002")
pad3.Profile = sketch3
pad3.setExpression("Length", "Params.pad3_length")
pad3.Reversed = True
body4 = doc.addObject("PartDesign::Body", "Body003")

sketch4 = body4.newObject("Sketcher::SketchObject", "Sketch003")
sketch4.AttachmentSupport = (doc.getObject("XZ_Plane003"), [""])
sketch4.MapMode = "FlatFace"
sketch4.addGeometry([
    Part.LineSegment(Vector(20, -17.5, 0), Vector(20, -4.7, 0)),
    Part.ArcOfCircle(Part.Circle(Vector(22.64, -0.11, 0), Vector(0, 0, 1), 5.3), math.radians(-119.87), math.radians(-113.8)),
    Part.LineSegment(Vector(20.5, -4.96, 0), Vector(20.12, -5.83, 0)),
    Part.ArcOfCircle(Part.Circle(Vector(22.64, -0.11, 0), Vector(0, 0, 1), 6.25), math.radians(-114), math.radians(-87)),
    Part.LineSegment(Vector(22.92, -6.35, 0), Vector(22.88, -5.41, 0)),
    Part.ArcOfCircle(Part.Circle(Vector(22.64, -0.11, 0), Vector(0, 0, 1), 5.3), math.radians(-87.38), math.radians(-70.4)),
    Part.LineSegment(Vector(24.42, -5.11, 0), Vector(24.73, -6, 0)),
    Part.ArcOfCircle(Part.Circle(Vector(22.64, -0.11, 0), Vector(0, 0, 1), 6.25), math.radians(-70.4), math.radians(-67.8)),
    Part.LineSegment(Vector(25, -5.9, 0), Vector(25, -22.5, 0)),
    Part.LineSegment(Vector(25, -22.5, 0), Vector(-25, -22.5, 0)),
    Part.LineSegment(Vector(-25, -22.5, 0), Vector(-25, -5.9, 0)),
    Part.ArcOfCircle(Part.Circle(Vector(-22.64, -0.11, 0), Vector(0, 0, 1), 6.25), math.radians(-112.2), math.radians(-109.6)),
    Part.LineSegment(Vector(-24.73, -6, 0), Vector(-24.42, -5.11, 0)),
    Part.ArcOfCircle(Part.Circle(Vector(-22.64, -0.11, 0), Vector(0, 0, 1), 5.3), math.radians(-109.6), math.radians(-92.62)),
    Part.LineSegment(Vector(-22.88, -5.41, 0), Vector(-22.92, -6.35, 0)),
    Part.ArcOfCircle(Part.Circle(Vector(-22.64, -0.11, 0), Vector(0, 0, 1), 6.25), math.radians(-93), math.radians(-66)),
    Part.LineSegment(Vector(-20.12, -5.83, 0), Vector(-20.5, -4.96, 0)),
    Part.ArcOfCircle(Part.Circle(Vector(-22.64, -0.11, 0), Vector(0, 0, 1), 5.3), math.radians(-66.2), math.radians(-60.13)),
    Part.LineSegment(Vector(-20, -4.7, 0), Vector(-20, -17.5, 0)),
    Part.LineSegment(Vector(-20, -17.5, 0), Vector(20, -17.5, 0)),
], False)
sketch4.addConstraint([
    Sketcher.Constraint("Coincident", 0, 2, 1, 1),
    Sketcher.Constraint("Coincident", 1, 2, 2, 1),
    Sketcher.Constraint("Coincident", 2, 2, 3, 1),
    Sketcher.Constraint("Coincident", 3, 2, 4, 1),
    Sketcher.Constraint("Coincident", 4, 2, 5, 1),
    Sketcher.Constraint("Coincident", 5, 2, 6, 1),
    Sketcher.Constraint("Coincident", 6, 2, 7, 1),
    Sketcher.Constraint("Coincident", 7, 2, 8, 1),
    Sketcher.Constraint("Coincident", 8, 2, 9, 1),
    Sketcher.Constraint("Coincident", 9, 2, 10, 1),
    Sketcher.Constraint("Coincident", 10, 2, 11, 1),
    Sketcher.Constraint("Coincident", 11, 2, 12, 1),
    Sketcher.Constraint("Coincident", 12, 2, 13, 1),
    Sketcher.Constraint("Coincident", 13, 2, 14, 1),
    Sketcher.Constraint("Coincident", 14, 2, 15, 1),
    Sketcher.Constraint("Coincident", 15, 2, 16, 1),
    Sketcher.Constraint("Coincident", 16, 2, 17, 1),
    Sketcher.Constraint("Coincident", 17, 2, 18, 1),
    Sketcher.Constraint("Coincident", 18, 2, 19, 1),
    Sketcher.Constraint("Coincident", 19, 2, 0, 1),
    Sketcher.Constraint("Vertical", 0),
    Sketcher.Constraint("Vertical", 8),
    Sketcher.Constraint("Horizontal", 9),
    Sketcher.Constraint("Vertical", 10),
    Sketcher.Constraint("Vertical", 18),
    Sketcher.Constraint("Horizontal", 19),
    Sketcher.Constraint("Coincident", 3, 3, 1, 3),
    Sketcher.Constraint("Coincident", 5, 3, 1, 3),
    Sketcher.Constraint("Coincident", 7, 3, 1, 3),
    Sketcher.Constraint("Coincident", 13, 3, 11, 3),
    Sketcher.Constraint("Coincident", 15, 3, 11, 3),
    Sketcher.Constraint("Coincident", 17, 3, 11, 3),
    Sketcher.Constraint("Equal", 3, 7),
    Sketcher.Constraint("Equal", 7, 11),
    Sketcher.Constraint("Equal", 5, 13),
    Sketcher.Constraint("Equal", 11, 15),
    Sketcher.Constraint("Equal", 1, 17),
    Sketcher.Constraint("Symmetric", 1, 3, 11, 3, -2),
    Sketcher.Constraint("Horizontal", 7, 2, 10, 2),
    Sketcher.Constraint("Horizontal", 6, 2, 11, 2),
    Sketcher.Constraint("Horizontal", 5, 2, 12, 2),
    Sketcher.Constraint("Horizontal", 4, 2, 13, 2),
    Sketcher.Constraint("Horizontal", 3, 2, 14, 2),
    Sketcher.Constraint("Horizontal", 2, 2, 15, 2),
    Sketcher.Constraint("Horizontal", 1, 2, 16, 2),
    Sketcher.Constraint("Horizontal", 0, 2, 17, 2),
    Sketcher.Constraint("DistanceX", 9, 2, 9, 1, 50.0),
    Sketcher.Constraint("DistanceX", 19, 1, 19, 2, 40.0),
    Sketcher.Constraint("Radius", 3, 6.25),
    Sketcher.Constraint("DistanceY", 9, 2, 18, 2, 5.0),
    Sketcher.Constraint("DistanceY", 8, 2, -1, 1, 22.5),
    Sketcher.Constraint("Radius", 5, 5.30187),
    Sketcher.Constraint("Radius", 1, 5.297444),
    Sketcher.Constraint("DistanceX", 5, 2, 6, 2, 0.317999),
    Sketcher.Constraint("DistanceY", 6, 2, 1, 2, 1.040998),
    Sketcher.Constraint("DistanceY", 8, 2, 8, 1, 16.602859),
    Sketcher.Constraint("DistanceX", -1, 1, 2, 2, 20.116101),
    Sketcher.Constraint("DistanceY", 0, 2, 1, 3, 4.593802),
    Sketcher.Constraint("DistanceX", 1, 2, 6, 2, 4.233902),
    Sketcher.Constraint("DistanceY", 3, 2, -1, 1, 6.35405),
    Sketcher.Constraint("DistanceY", 4, 2, -1, 1, 5.406912),
])
sketch4.setExpression("Constraints[46]", "Params.sketch4_width")
sketch4.setExpression("Constraints[47]", "Params.sketch4_width2")
sketch4.setExpression("Constraints[48]", "Params.sketch4_radius")
pad4 = body4.newObject("PartDesign::Pad", "Pad003")
pad4.Profile = sketch4
pad4.setExpression("Length", "Params.pad4_length")
pad4.Reversed = True
body5 = doc.addObject("PartDesign::Body", "Body004")

sketch5 = body5.newObject("Sketcher::SketchObject", "Sketch004")
sketch5.AttachmentSupport = (doc.getObject("XZ_Plane004"), [""])
sketch5.MapMode = "FlatFace"
sketch5.addGeometry(Part.Circle(Vector(22.6, -0.1, 0), Vector(0, 0, 1), 1), False)
sketch5.addConstraint([
    Sketcher.Constraint("Diameter", 0, 2.0),
    Sketcher.Constraint("DistanceX", -1, 1, 0, 3, 22.638162),
    Sketcher.Constraint("DistanceY", 0, 3, -1, 1, 0.110586),
])
sketch5.setExpression("Constraints[0]", "Params.sketch5_diameter")
pad5 = body5.newObject("PartDesign::Pad", "Pad004")
pad5.Profile = sketch5
pad5.setExpression("Length", "Params.pad5_length")
pad5.Reversed = True
body6 = doc.addObject("PartDesign::Body", "Body005")

sketch6 = body6.newObject("Sketcher::SketchObject", "Sketch005")
sketch6.AttachmentSupport = (doc.getObject("XZ_Plane005"), [""])
sketch6.MapMode = "FlatFace"
sketch6.addGeometry(Part.Circle(Vector(-22.6, -0.1, 0), Vector(0, 0, 1), 1), False)
sketch6.addConstraint([
    Sketcher.Constraint("Diameter", 0, 2.0),
    Sketcher.Constraint("DistanceX", 0, 3, -1, 1, 22.638162),
    Sketcher.Constraint("DistanceY", 0, 3, -1, 1, 0.110586),
])
sketch6.setExpression("Constraints[0]", "Params.sketch6_diameter")
pad6 = body6.newObject("PartDesign::Pad", "Pad005")
pad6.Profile = sketch6
pad6.setExpression("Length", "Params.pad6_length")
pad6.Reversed = True

doc.recompute()
